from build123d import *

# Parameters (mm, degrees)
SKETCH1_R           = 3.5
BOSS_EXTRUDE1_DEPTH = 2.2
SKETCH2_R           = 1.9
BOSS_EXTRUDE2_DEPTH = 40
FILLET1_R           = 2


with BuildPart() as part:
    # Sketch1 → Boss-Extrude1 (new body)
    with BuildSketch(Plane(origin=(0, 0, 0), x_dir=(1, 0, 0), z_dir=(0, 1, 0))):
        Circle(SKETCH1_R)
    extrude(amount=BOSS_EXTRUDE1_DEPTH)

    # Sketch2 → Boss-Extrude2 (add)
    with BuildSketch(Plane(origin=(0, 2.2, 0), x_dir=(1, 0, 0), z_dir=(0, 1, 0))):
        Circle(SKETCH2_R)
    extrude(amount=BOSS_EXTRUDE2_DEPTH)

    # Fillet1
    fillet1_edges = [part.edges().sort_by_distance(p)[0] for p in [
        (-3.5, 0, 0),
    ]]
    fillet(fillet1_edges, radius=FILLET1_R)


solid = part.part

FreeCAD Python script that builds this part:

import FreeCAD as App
import Part
import Sketcher

V = App.Vector


def edges_at(feature, points):
    """Names of the edges that pass closest to the given points."""
    edges = feature.Shape.Edges
    near = lambda p: min(range(len(edges)), key=lambda i: edges[i].distToShape(Part.Vertex(*p))[0])
    return sorted({f"Edge{near(p) + 1}" for p in points})

doc = App.newDocument("Part")
params = doc.addObject("Spreadsheet::Sheet", "Params")
for row, (alias, value) in enumerate([
    ("sketch1_diameter", "7 mm"),
    ("pad1_length", "2.2 mm"),
    ("sketch2_diameter", "3.8 mm"),
    ("pad2_length", "40 mm"),
    ("fillet_radius", "2 mm"),
], start=1):
    params.set(f"A{row}", alias)
    params.set(f"B{row}", "=" + value)
    params.setAlias(f"B{row}", alias)

body = doc.addObject("PartDesign::Body", "Body")

# Sketch on XZ plane
sketch1 = body.newObject("Sketcher::SketchObject", "Sketch")
sketch1.AttachmentSupport = (doc.getObject("XZ_Plane"), [""])
sketch1.MapMode = "FlatFace"
sketch1.addGeometry(Part.Circle(V(0, 0, 0), V(0, 0, 1), 3.5), False)
sketch1.addConstraint(Sketcher.Constraint("Coincident", 0, 3, -1, 1))
sketch1.addConstraint(Sketcher.Constraint("Diameter", 0, 7.0))
sketch1.setExpression("Constraints[1]", "Params.sketch1_diameter")
pad1 = body.newObject("PartDesign::Pad", "Pad")
pad1.Profile = sketch1
pad1.setExpression("Length", "Params.pad1_length")
pad1.Reversed = True

# Sketch on XZ plane
sketch2 = body.newObject("Sketcher::SketchObject", "Sketch001")
sketch2.AttachmentSupport = (doc.getObject("XZ_Plane"), [""])
sketch2.MapMode = "FlatFace"
sketch2.AttachmentOffset = App.Placement(V(0, 0, -2.2), App.Rotation())
sketch2.addGeometry(Part.Circle(V(0, 0, 0), V(0, 0, 1), 1.9), False)
sketch2.addConstraint(Sketcher.Constraint("Coincident", 0, 3, -1, 1))
sketch2.addConstraint(Sketcher.Constraint("Diameter", 0, 3.8))
sketch2.setExpression("Constraints[1]", "Params.sketch2_diameter")
pad2 = body.newObject("PartDesign::Pad", "Pad001")
pad2.Profile = sketch2
pad2.setExpression("Length", "Params.pad2_length")
pad2.Reversed = True
doc.recompute()

fillet = body.newObject("PartDesign::Fillet", "Fillet")
fillet.Base = (pad2, edges_at(pad2, [(-3.5, 0, 0)]))
fillet.setExpression("Radius", "Params.fillet_radius")

doc.recompute()
